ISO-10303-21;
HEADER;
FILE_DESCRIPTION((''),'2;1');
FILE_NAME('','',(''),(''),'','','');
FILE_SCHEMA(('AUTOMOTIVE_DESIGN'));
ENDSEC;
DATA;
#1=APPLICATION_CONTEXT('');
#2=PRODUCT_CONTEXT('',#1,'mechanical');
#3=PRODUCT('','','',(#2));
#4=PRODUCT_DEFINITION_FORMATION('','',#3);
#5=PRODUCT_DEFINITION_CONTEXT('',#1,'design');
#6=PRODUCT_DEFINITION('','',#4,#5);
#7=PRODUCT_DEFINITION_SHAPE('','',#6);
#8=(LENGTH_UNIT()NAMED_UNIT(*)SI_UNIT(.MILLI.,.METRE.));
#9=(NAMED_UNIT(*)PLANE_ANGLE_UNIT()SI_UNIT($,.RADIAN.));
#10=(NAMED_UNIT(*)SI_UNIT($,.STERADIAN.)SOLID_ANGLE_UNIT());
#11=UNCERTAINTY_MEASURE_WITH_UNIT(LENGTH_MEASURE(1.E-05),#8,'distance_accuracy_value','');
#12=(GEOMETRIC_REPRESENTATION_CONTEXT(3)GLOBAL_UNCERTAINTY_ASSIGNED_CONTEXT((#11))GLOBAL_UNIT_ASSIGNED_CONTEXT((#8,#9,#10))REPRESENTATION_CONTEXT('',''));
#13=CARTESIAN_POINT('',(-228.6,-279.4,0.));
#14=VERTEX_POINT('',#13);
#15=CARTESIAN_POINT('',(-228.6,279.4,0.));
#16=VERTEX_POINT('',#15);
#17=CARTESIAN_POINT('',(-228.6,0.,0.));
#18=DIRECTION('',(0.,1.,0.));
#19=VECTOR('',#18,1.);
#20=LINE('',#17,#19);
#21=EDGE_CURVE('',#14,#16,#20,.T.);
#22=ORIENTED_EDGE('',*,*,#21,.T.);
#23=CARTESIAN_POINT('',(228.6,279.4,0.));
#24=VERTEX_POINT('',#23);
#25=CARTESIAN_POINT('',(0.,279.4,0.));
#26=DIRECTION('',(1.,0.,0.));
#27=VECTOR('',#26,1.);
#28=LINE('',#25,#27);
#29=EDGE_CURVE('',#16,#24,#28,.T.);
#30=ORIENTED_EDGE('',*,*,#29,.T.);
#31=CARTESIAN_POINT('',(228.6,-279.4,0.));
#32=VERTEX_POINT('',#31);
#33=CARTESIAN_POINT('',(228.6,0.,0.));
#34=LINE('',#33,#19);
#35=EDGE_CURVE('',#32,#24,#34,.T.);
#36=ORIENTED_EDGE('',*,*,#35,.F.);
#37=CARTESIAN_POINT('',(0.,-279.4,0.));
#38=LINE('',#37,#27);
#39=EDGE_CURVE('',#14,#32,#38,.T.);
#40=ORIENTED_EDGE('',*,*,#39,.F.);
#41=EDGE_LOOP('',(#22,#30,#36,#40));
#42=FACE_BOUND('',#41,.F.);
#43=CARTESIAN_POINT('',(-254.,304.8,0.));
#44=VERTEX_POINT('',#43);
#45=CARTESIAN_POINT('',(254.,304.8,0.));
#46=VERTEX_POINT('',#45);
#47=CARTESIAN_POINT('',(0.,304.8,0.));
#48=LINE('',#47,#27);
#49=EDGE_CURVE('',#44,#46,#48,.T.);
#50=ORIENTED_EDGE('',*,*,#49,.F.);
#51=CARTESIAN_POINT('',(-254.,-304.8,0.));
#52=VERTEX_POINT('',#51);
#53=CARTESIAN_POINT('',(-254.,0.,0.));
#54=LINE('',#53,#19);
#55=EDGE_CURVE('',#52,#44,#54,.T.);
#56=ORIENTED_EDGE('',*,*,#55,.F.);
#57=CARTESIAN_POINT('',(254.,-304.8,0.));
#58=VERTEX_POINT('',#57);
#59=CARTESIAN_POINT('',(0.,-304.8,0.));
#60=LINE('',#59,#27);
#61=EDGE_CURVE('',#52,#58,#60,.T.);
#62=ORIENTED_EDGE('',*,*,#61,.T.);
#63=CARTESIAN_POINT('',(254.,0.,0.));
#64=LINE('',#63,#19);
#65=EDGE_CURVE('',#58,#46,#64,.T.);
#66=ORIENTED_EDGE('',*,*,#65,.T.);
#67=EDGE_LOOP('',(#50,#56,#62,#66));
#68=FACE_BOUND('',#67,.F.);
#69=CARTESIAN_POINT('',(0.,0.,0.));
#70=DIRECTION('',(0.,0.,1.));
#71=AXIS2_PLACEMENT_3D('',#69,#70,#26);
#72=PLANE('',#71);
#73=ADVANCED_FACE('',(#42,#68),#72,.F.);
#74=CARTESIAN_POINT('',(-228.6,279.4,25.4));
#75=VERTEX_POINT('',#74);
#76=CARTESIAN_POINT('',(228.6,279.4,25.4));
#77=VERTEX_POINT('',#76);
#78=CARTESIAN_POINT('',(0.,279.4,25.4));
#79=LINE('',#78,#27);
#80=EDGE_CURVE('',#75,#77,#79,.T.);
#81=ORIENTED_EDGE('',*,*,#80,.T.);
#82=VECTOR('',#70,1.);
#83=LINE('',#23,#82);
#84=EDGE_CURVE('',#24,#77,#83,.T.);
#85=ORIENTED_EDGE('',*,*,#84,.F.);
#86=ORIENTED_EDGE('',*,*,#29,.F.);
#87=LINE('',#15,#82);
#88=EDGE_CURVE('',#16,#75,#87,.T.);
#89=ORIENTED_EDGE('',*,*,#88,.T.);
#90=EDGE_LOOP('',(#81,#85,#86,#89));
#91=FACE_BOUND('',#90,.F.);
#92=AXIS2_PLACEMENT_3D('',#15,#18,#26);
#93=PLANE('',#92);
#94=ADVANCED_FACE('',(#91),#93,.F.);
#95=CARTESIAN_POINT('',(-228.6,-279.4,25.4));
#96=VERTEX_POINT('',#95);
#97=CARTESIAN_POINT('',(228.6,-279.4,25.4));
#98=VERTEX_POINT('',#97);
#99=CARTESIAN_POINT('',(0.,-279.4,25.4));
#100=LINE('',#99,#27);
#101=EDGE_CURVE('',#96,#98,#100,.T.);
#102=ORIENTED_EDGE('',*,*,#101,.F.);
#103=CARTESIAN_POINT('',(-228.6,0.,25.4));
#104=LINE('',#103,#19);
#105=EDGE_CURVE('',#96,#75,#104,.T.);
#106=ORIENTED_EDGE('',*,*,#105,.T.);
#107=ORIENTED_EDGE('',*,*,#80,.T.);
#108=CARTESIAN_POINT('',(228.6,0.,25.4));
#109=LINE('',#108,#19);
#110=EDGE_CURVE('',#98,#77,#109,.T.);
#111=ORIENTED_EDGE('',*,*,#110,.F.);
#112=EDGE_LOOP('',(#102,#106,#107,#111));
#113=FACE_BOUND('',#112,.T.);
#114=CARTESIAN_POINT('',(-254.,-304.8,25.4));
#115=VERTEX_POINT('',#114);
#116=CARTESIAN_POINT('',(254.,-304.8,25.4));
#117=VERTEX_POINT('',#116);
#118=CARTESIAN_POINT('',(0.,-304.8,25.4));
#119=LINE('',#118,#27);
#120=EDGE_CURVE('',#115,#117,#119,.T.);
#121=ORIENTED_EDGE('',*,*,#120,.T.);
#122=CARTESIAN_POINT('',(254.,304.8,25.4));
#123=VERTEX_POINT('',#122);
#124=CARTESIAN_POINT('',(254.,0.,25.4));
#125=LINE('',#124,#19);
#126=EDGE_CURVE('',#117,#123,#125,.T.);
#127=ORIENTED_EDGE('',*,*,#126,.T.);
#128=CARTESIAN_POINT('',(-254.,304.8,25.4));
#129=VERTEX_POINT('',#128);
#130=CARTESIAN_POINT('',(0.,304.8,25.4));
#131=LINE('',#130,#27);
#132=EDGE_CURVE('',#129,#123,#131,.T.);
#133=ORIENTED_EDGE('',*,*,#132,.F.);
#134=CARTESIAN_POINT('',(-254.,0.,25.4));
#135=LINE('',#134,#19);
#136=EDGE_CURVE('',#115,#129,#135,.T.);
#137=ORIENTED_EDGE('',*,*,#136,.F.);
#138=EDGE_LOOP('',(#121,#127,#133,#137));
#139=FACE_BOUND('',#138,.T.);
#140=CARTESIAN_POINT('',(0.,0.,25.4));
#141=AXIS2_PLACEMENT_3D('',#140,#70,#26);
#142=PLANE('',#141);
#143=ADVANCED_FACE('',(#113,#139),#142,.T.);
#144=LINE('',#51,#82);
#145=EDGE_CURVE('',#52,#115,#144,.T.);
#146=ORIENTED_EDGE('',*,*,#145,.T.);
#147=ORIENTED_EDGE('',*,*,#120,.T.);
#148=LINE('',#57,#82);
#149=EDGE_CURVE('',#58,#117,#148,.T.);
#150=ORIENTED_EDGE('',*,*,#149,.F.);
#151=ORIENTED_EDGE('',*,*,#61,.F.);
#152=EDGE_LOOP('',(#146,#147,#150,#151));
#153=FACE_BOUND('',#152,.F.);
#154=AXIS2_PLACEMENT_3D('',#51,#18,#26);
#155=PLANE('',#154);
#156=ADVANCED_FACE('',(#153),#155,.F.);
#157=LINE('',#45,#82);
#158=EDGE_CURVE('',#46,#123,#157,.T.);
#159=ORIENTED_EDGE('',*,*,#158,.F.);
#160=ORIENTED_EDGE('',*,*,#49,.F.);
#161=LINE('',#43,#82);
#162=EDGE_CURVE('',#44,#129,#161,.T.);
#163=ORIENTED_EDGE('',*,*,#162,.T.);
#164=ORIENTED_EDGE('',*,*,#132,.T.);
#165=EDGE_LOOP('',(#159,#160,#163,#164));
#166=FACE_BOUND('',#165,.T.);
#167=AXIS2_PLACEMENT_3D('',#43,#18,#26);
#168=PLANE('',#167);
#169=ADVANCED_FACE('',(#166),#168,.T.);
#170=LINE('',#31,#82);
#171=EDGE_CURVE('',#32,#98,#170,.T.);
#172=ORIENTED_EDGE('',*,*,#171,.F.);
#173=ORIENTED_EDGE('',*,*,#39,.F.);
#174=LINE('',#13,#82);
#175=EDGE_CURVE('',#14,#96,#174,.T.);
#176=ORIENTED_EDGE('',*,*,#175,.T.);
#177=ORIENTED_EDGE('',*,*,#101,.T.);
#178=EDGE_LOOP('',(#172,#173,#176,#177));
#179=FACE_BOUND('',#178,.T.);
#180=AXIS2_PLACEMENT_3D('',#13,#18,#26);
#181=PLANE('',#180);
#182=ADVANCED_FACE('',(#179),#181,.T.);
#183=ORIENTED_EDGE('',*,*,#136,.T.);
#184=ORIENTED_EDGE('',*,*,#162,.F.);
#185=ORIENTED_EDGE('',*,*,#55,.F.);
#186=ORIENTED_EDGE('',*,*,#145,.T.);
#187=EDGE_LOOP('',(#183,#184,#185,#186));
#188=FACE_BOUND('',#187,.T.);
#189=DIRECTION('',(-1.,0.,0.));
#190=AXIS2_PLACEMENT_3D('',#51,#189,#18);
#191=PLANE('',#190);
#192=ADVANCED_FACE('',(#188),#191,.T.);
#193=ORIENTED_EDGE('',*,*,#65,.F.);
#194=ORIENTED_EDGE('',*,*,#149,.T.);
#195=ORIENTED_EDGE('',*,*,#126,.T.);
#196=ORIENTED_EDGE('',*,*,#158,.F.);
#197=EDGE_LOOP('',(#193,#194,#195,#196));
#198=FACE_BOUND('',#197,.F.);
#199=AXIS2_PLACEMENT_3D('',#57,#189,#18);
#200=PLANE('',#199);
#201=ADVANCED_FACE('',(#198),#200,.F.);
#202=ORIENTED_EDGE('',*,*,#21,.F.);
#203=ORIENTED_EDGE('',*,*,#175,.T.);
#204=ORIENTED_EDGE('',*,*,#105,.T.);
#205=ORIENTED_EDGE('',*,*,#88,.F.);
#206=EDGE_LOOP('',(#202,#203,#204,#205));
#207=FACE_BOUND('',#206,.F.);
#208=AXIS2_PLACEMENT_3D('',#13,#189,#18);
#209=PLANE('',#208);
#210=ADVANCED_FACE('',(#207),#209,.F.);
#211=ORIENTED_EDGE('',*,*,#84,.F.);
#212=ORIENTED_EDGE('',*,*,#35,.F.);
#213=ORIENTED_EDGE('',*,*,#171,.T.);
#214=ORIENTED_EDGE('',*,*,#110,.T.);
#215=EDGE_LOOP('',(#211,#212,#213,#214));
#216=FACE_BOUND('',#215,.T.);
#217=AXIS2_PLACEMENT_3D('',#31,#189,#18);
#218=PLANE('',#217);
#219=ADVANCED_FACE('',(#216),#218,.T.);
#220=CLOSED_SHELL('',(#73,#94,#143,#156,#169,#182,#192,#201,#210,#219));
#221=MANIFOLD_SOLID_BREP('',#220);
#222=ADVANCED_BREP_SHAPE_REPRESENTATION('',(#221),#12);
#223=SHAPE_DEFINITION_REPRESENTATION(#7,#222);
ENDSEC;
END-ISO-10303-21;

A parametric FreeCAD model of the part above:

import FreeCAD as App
import Part
import Sketcher
from FreeCAD import Vector
Q = App.Units.Quantity


def add_polygon(sketch, points):
    """Adds a closed chain of lines whose ends are joined by coincident constraints."""
    first, n = sketch.GeometryCount, len(points)
    for a, b in zip(points, points[1:] + points[:1]):
        sketch.addGeometry(Part.LineSegment(App.Vector(*a, 0), App.Vector(*b, 0)), False)
    for i in range(n):
        sketch.addConstraint(Sketcher.Constraint("Coincident", first + i, 2, first + (i + 1) % n, 1))

doc = App.newDocument("Part")
body = doc.addObject("PartDesign::Body", "Body")

# Sketch on XY plane
sketch1 = doc.addObject("Sketcher::SketchObject", "Sketch")
body.addObject(sketch1)
sketch1.AttachmentSupport = (doc.XY_Plane, [""])
sketch1.MapMode = "FlatFace"
add_polygon(sketch1, [(-254, 305), (-254, -305), (254, -305), (254, 305)])  # lines 0-3
add_polygon(sketch1, [(229, -279), (-229, -279), (-229, 279), (229, 279)])  # lines 4-7
sketch1.addConstraint([
    Sketcher.Constraint("Vertical", 0),
    Sketcher.Constraint("Horizontal", 1),
    Sketcher.Constraint("Vertical", 2),
    Sketcher.Constraint("Horizontal", 3),
    Sketcher.Constraint("Horizontal", 4),
    Sketcher.Constraint("Vertical", 5),
    Sketcher.Constraint("Horizontal", 6),
    Sketcher.Constraint("Vertical", 7),
    Sketcher.Constraint("Symmetric", 0, 2, 2, 2, -1, 1),
    Sketcher.Constraint("Symmetric", 4, 2, 6, 2, -1, 1),
    Sketcher.Constraint("DistanceX", 1, 1, 1, 2, Q("20 in")),
    Sketcher.Constraint("DistanceX", 4, 2, 4, 1, Q("18 in")),
    Sketcher.Constraint("DistanceY", 0, 2, 0, 1, Q("24 in")),
    Sketcher.Constraint("DistanceY", 5, 1, 5, 2, Q("22 in")),
])
pad1 = doc.addObject("PartDesign::Pad", "Pad")
body.addObject(pad1)
pad1.Profile = sketch1
pad1.Length = Q("1 in")

doc.recompute()
